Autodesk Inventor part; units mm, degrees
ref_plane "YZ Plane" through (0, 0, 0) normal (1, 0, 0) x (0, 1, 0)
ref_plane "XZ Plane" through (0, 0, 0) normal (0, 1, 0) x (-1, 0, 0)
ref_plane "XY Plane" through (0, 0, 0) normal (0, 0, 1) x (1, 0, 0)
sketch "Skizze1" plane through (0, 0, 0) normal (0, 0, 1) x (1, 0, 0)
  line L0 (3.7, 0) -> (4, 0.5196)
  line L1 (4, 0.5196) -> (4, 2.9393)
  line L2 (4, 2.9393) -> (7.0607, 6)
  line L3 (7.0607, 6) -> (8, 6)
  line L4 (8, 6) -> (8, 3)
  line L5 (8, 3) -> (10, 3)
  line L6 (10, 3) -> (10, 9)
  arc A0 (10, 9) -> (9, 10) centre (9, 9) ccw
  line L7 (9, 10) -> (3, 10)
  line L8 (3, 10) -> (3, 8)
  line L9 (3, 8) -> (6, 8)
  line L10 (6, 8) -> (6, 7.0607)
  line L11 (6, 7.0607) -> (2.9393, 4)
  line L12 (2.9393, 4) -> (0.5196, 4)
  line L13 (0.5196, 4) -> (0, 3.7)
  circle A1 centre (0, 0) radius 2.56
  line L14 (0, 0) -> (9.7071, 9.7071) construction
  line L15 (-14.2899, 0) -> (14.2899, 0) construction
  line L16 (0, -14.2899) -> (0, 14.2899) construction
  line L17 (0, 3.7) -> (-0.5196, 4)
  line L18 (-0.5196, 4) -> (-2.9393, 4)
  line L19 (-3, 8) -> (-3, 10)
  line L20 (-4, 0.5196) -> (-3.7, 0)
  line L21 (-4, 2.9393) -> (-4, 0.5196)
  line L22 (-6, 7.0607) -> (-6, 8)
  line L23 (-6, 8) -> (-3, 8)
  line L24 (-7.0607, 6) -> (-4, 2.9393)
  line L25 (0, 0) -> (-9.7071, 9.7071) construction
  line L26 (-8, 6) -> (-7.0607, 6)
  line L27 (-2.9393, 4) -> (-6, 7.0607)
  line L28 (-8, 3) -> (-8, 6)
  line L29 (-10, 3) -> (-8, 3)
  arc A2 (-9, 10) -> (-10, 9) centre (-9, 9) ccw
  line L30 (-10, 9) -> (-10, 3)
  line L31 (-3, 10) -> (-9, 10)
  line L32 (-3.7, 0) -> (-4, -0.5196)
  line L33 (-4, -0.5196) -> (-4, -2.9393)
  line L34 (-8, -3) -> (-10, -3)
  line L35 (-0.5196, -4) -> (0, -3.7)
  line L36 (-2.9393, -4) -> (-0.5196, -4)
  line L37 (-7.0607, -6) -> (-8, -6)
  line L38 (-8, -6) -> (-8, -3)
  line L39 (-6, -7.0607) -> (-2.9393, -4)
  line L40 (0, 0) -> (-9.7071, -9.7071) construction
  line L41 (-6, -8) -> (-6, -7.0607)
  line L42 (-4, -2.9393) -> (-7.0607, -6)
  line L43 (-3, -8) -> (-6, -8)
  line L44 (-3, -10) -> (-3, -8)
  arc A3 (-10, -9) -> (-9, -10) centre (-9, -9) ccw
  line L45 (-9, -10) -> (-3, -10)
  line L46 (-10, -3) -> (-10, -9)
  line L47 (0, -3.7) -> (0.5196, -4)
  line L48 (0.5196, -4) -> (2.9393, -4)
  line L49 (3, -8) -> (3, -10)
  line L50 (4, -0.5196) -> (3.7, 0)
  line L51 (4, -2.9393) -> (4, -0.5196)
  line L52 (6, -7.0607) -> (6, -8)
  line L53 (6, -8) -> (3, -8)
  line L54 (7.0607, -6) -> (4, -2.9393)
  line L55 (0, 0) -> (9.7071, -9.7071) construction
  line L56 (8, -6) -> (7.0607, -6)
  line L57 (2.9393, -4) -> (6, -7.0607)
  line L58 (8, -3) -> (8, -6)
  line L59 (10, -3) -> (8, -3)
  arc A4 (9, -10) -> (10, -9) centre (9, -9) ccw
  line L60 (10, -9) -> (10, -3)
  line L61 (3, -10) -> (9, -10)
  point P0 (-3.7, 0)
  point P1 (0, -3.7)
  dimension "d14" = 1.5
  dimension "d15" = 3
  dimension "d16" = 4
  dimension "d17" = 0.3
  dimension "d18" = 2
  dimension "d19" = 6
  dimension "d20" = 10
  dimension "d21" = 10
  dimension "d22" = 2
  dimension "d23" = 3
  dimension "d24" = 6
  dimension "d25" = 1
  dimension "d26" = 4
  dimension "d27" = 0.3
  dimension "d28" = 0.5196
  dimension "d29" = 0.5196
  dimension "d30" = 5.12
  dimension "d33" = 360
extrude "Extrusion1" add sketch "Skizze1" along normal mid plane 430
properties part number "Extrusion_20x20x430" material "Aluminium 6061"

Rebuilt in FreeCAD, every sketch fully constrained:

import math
import FreeCAD as App
import Part
import Sketcher

V = App.Vector
Q = App.Units.Quantity

doc = App.newDocument("Part")
body = doc.addObject("PartDesign::Body", "Body")

# Sketch on XY plane
sketch1 = body.newObject("Sketcher::SketchObject", "Sketch")
sketch1.AttachmentSupport = (doc.getObject("XY_Plane"), [""])
sketch1.MapMode = "FlatFace"
sketch1.addGeometry([
    Part.LineSegment(V(4, -0.5, 0), V(3.7, 0, 0)),  # 0
    Part.LineSegment(V(3.7, 0, 0), V(4, 0.5, 0)),  # 1
    Part.LineSegment(V(4, 0.5, 0), V(4, 2.9, 0)),  # 2
    Part.LineSegment(V(4, 2.9, 0), V(7.1, 6, 0)),  # 3
    Part.LineSegment(V(7.1, 6, 0), V(8, 6, 0)),  # 4
    Part.LineSegment(V(8, 6, 0), V(8, 3, 0)),  # 5
    Part.LineSegment(V(8, 3, 0), V(10, 3, 0)),  # 6
    Part.LineSegment(V(10, 3, 0), V(10, 9, 0)),  # 7
    Part.ArcOfCircle(Part.Circle(V(9, 9, 0), V(0, 0, 1), 1), math.radians(0), math.radians(90)),  # 8
    Part.LineSegment(V(9, 10, 0), V(3, 10, 0)),  # 9
    Part.LineSegment(V(3, 10, 0), V(3, 8, 0)),  # 10
    Part.LineSegment(V(3, 8, 0), V(6, 8, 0)),  # 11
    Part.LineSegment(V(6, 8, 0), V(6, 7.1, 0)),  # 12
    Part.LineSegment(V(6, 7.1, 0), V(2.9, 4, 0)),  # 13
    Part.LineSegment(V(2.9, 4, 0), V(0.5, 4, 0)),  # 14
    Part.LineSegment(V(0.5, 4, 0), V(0, 3.7, 0)),  # 15
    Part.LineSegment(V(0, 3.7, 0), V(-0.5, 4, 0)),  # 16
    Part.LineSegment(V(-0.5, 4, 0), V(-2.9, 4, 0)),  # 17
    Part.LineSegment(V(-2.9, 4, 0), V(-6, 7.1, 0)),  # 18
    Part.LineSegment(V(-6, 7.1, 0), V(-6, 8, 0)),  # 19
    Part.LineSegment(V(-6, 8, 0), V(-3, 8, 0)),  # 20
    Part.LineSegment(V(-3, 8, 0), V(-3, 10, 0)),  # 21
    Part.LineSegment(V(-3, 10, 0), V(-9, 10, 0)),  # 22
    Part.ArcOfCircle(Part.Circle(V(-9, 9, 0), V(0, 0, 1), 1), math.radians(90), math.radians(180)),  # 23
    Part.LineSegment(V(-10, 9, 0), V(-10, 3, 0)),  # 24
    Part.LineSegment(V(-10, 3, 0), V(-8, 3, 0)),  # 25
    Part.LineSegment(V(-8, 3, 0), V(-8, 6, 0)),  # 26
    Part.LineSegment(V(-8, 6, 0), V(-7.1, 6, 0)),  # 27
    Part.LineSegment(V(-7.1, 6, 0), V(-4, 2.9, 0)),  # 28
    Part.LineSegment(V(-4, 2.9, 0), V(-4, 0.5, 0)),  # 29
    Part.LineSegment(V(-4, 0.5, 0), V(-3.7, 0, 0)),  # 30
    Part.LineSegment(V(-3.7, 0, 0), V(-4, -0.5, 0)),  # 31
    Part.LineSegment(V(-4, -0.5, 0), V(-4, -2.9, 0)),  # 32
    Part.LineSegment(V(-4, -2.9, 0), V(-7.1, -6, 0)),  # 33
    Part.LineSegment(V(-7.1, -6, 0), V(-8, -6, 0)),  # 34
    Part.LineSegment(V(-8, -6, 0), V(-8, -3, 0)),  # 35
    Part.LineSegment(V(-8, -3, 0), V(-10, -3, 0)),  # 36
    Part.LineSegment(V(-10, -3, 0), V(-10, -9, 0)),  # 37
    Part.ArcOfCircle(Part.Circle(V(-9, -9, 0), V(0, 0, 1), 1), math.radians(180), math.radians(270)),  # 38
    Part.LineSegment(V(-9, -10, 0), V(-3, -10, 0)),  # 39
    Part.LineSegment(V(-3, -10, 0), V(-3, -8, 0)),  # 40
    Part.LineSegment(V(-3, -8, 0), V(-6, -8, 0)),  # 41
    Part.LineSegment(V(-6, -8, 0), V(-6, -7.1, 0)),  # 42
    Part.LineSegment(V(-6, -7.1, 0), V(-2.9, -4, 0)),  # 43
    Part.LineSegment(V(-2.9, -4, 0), V(-0.5, -4, 0)),  # 44
    Part.LineSegment(V(-0.5, -4, 0), V(0, -3.7, 0)),  # 45
    Part.LineSegment(V(0, -3.7, 0), V(0.5, -4, 0)),  # 46
    Part.LineSegment(V(0.5, -4, 0), V(2.9, -4, 0)),  # 47
    Part.LineSegment(V(2.9, -4, 0), V(6, -7.1, 0)),  # 48
    Part.LineSegment(V(6, -7.1, 0), V(6, -8, 0)),  # 49
    Part.LineSegment(V(6, -8, 0), V(3, -8, 0)),  # 50
    Part.LineSegment(V(3, -8, 0), V(3, -10, 0)),  # 51
    Part.LineSegment(V(3, -10, 0), V(9, -10, 0)),  # 52
    Part.ArcOfCircle(Part.Circle(V(9, -9, 0), V(0, 0, 1), 1), math.radians(-90), math.radians(0)),  # 53
    Part.LineSegment(V(10, -9, 0), V(10, -3, 0)),  # 54
    Part.LineSegment(V(10, -3, 0), V(8, -3, 0)),  # 55
    Part.LineSegment(V(8, -3, 0), V(8, -6, 0)),  # 56
    Part.LineSegment(V(8, -6, 0), V(7.1, -6, 0)),  # 57
    Part.LineSegment(V(7.1, -6, 0), V(4, -2.9, 0)),  # 58
    Part.LineSegment(V(4, -2.9, 0), V(4, -0.5, 0)),  # 59
    Part.Circle(V(0, 0, 0), V(0, 0, 1), 2.6),  # 60
], False)
sketch1.addConstraint([
    Sketcher.Constraint("Coincident", 0, 2, 1, 1),
    Sketcher.Constraint("Coincident", 1, 2, 2, 1),
    Sketcher.Constraint("Coincident", 2, 2, 3, 1),
    Sketcher.Constraint("Coincident", 3, 2, 4, 1),
    Sketcher.Constraint("Coincident", 4, 2, 5, 1),
    Sketcher.Constraint("Coincident", 5, 2, 6, 1),
    Sketcher.Constraint("Coincident", 6, 2, 7, 1),
    Sketcher.Constraint("Tangent", 7, 2, 8, 1),
    Sketcher.Constraint("Tangent", 8, 2, 9, 1),
    Sketcher.Constraint("Coincident", 9, 2, 10, 1),
    Sketcher.Constraint("Coincident", 10, 2, 11, 1),
    Sketcher.Constraint("Coincident", 11, 2, 12, 1),
    Sketcher.Constraint("Coincident", 12, 2, 13, 1),
    Sketcher.Constraint("Coincident", 13, 2, 14, 1),
    Sketcher.Constraint("Coincident", 14, 2, 15, 1),
    Sketcher.Constraint("Coincident", 15, 2, 16, 1),
    Sketcher.Constraint("Coincident", 16, 2, 17, 1),
    Sketcher.Constraint("Coincident", 17, 2, 18, 1),
    Sketcher.Constraint("Coincident", 18, 2, 19, 1),
    Sketcher.Constraint("Coincident", 19, 2, 20, 1),
    Sketcher.Constraint("Coincident", 20, 2, 21, 1),
    Sketcher.Constraint("Coincident", 21, 2, 22, 1),
    Sketcher.Constraint("Tangent", 22, 2, 23, 1),
    Sketcher.Constraint("Tangent", 23, 2, 24, 1),
    Sketcher.Constraint("Coincident", 24, 2, 25, 1),
    Sketcher.Constraint("Coincident", 25, 2, 26, 1),
    Sketcher.Constraint("Coincident", 26, 2, 27, 1),
    Sketcher.Constraint("Coincident", 27, 2, 28, 1),
    Sketcher.Constraint("Coincident", 28, 2, 29, 1),
    Sketcher.Constraint("Coincident", 29, 2, 30, 1),
    Sketcher.Constraint("Coincident", 30, 2, 31, 1),
    Sketcher.Constraint("Coincident", 31, 2, 32, 1),
    Sketcher.Constraint("Coincident", 32, 2, 33, 1),
    Sketcher.Constraint("Coincident", 33, 2, 34, 1),
    Sketcher.Constraint("Coincident", 34, 2, 35, 1),
    Sketcher.Constraint("Coincident", 35, 2, 36, 1),
    Sketcher.Constraint("Coincident", 36, 2, 37, 1),
    Sketcher.Constraint("Tangent", 37, 2, 38, 1),
    Sketcher.Constraint("Tangent", 38, 2, 39, 1),
    Sketcher.Constraint("Coincident", 39, 2, 40, 1),
    Sketcher.Constraint("Coincident", 40, 2, 41, 1),
    Sketcher.Constraint("Coincident", 41, 2, 42, 1),
    Sketcher.Constraint("Coincident", 42, 2, 43, 1),
    Sketcher.Constraint("Coincident", 43, 2, 44, 1),
    Sketcher.Constraint("Coincident", 44, 2, 45, 1),
    Sketcher.Constraint("Coincident", 45, 2, 46, 1),
    Sketcher.Constraint("Coincident", 46, 2, 47, 1),
    Sketcher.Constraint("Coincident", 47, 2, 48, 1),
    Sketcher.Constraint("Coincident", 48, 2, 49, 1),
    Sketcher.Constraint("Coincident", 49, 2, 50, 1),
    Sketcher.Constraint("Coincident", 50, 2, 51, 1),
    Sketcher.Constraint("Coincident", 51, 2, 52, 1),
    Sketcher.Constraint("Tangent", 52, 2, 53, 1),
    Sketcher.Constraint("Tangent", 53, 2, 54, 1),
    Sketcher.Constraint("Coincident", 54, 2, 55, 1),
    Sketcher.Constraint("Coincident", 55, 2, 56, 1),
    Sketcher.Constraint("Coincident", 56, 2, 57, 1),
    Sketcher.Constraint("Coincident", 57, 2, 58, 1),
    Sketcher.Constraint("Coincident", 58, 2, 59, 1),
    Sketcher.Constraint("Coincident", 59, 2, 0, 1),
    Sketcher.Constraint("Vertical", 2),
    Sketcher.Constraint("Horizontal", 4),
    Sketcher.Constraint("Vertical", 5),
    Sketcher.Constraint("Horizontal", 6),
    Sketcher.Constraint("Vertical", 7),
    Sketcher.Constraint("Horizontal", 9),
    Sketcher.Constraint("Vertical", 10),
    Sketcher.Constraint("Horizontal", 11),
    Sketcher.Constraint("Vertical", 12),
    Sketcher.Constraint("Horizontal", 14),
    Sketcher.Constraint("Horizontal", 17),
    Sketcher.Constraint("Vertical", 19),
    Sketcher.Constraint("Horizontal", 20),
    Sketcher.Constraint("Vertical", 21),
    Sketcher.Constraint("Horizontal", 22),
    Sketcher.Constraint("Vertical", 24),
    Sketcher.Constraint("Horizontal", 25),
    Sketcher.Constraint("Vertical", 26),
    Sketcher.Constraint("Horizontal", 27),
    Sketcher.Constraint("Vertical", 29),
    Sketcher.Constraint("Vertical", 32),
    Sketcher.Constraint("Horizontal", 34),
    Sketcher.Constraint("Vertical", 35),
    Sketcher.Constraint("Horizontal", 36),
    Sketcher.Constraint("Vertical", 37),
    Sketcher.Constraint("Horizontal", 39),
    Sketcher.Constraint("Vertical", 40),
    Sketcher.Constraint("Horizontal", 41),
    Sketcher.Constraint("Vertical", 42),
    Sketcher.Constraint("Horizontal", 44),
    Sketcher.Constraint("Horizontal", 47),
    Sketcher.Constraint("Vertical", 49),
    Sketcher.Constraint("Horizontal", 50),
    Sketcher.Constraint("Vertical", 51),
    Sketcher.Constraint("Horizontal", 52),
    Sketcher.Constraint("Vertical", 54),
    Sketcher.Constraint("Horizontal", 55),
    Sketcher.Constraint("Vertical", 56),
    Sketcher.Constraint("Horizontal", 57),
    Sketcher.Constraint("Vertical", 59),
    Sketcher.Constraint("Coincident", 60, 3, -1, 1),
    Sketcher.Constraint("Equal", 8, 23),
    Sketcher.Constraint("Equal", 23, 38),
    Sketcher.Constraint("Equal", 38, 53),
    Sketcher.Constraint("Symmetric", 8, 3, 38, 3, -1, 1),
    Sketcher.Constraint("Symmetric", 23, 3, 53, 3, -1, 1),
    Sketcher.Constraint("Symmetric", 0, 2, 30, 2, -1, 1),
    Sketcher.Constraint("Symmetric", 1, 2, 31, 2, -1, 1),
    Sketcher.Constraint("Symmetric", 3, 2, 33, 2, -1, 1),
    Sketcher.Constraint("Symmetric", 5, 2, 35, 2, -1, 1),
    Sketcher.Constraint("Symmetric", 10, 2, 40, 2, -1, 1),
    Sketcher.Constraint("Symmetric", 12, 2, 42, 2, -1, 1),
    Sketcher.Constraint("Symmetric", 13, 2, 43, 2, -1, 1),
    Sketcher.Constraint("Symmetric", 15, 2, 45, 2, -1, 1),
    Sketcher.Constraint("Symmetric", 16, 2, 46, 2, -1, 1),
    Sketcher.Constraint("Symmetric", 18, 2, 48, 2, -1, 1),
    Sketcher.Constraint("Symmetric", 20, 2, 50, 2, -1, 1),
    Sketcher.Constraint("Symmetric", 25, 2, 55, 2, -1, 1),
    Sketcher.Constraint("Symmetric", 27, 2, 57, 2, -1, 1),
    Sketcher.Constraint("Symmetric", 28, 2, 58, 2, -1, 1),
    Sketcher.Constraint("Symmetric", 8, 3, 23, 3, -2),
    Sketcher.Constraint("Symmetric", 14, 2, 16, 2, -2),
    Sketcher.Constraint("Symmetric", 12, 2, 18, 2, -2),
    Sketcher.Constraint("Symmetric", 10, 2, 20, 2, -2),
    Sketcher.Constraint("Symmetric", 5, 2, 25, 2, -2),
    Sketcher.Constraint("Symmetric", 3, 2, 27, 2, -2),
    Sketcher.Constraint("Symmetric", 2, 2, 28, 2, -2),
    Sketcher.Constraint("PointOnObject", 0, 2, -1),
    Sketcher.Constraint("PointOnObject", 15, 2, -2),
    Sketcher.Constraint("Parallel", 3, 13),
    Sketcher.Constraint("Perpendicular", 0, 15),
    Sketcher.Constraint("Perpendicular", 1, 16),
    Sketcher.Constraint("Perpendicular", 13, 18),
    Sketcher.Constraint("Parallel", 18, 28),
    Sketcher.Constraint("Perpendicular", 15, 30),
    Sketcher.Constraint("Perpendicular", 28, 33),
    Sketcher.Constraint("Perpendicular", 30, 45),
    Sketcher.Constraint("Perpendicular", 43, 48),
    Sketcher.Constraint("Equal", 47, 2),
    Sketcher.Constraint("Equal", 50, 5),
    Sketcher.Constraint("Equal", 52, 7),
    Sketcher.Constraint("Equal", 55, 10),
    Sketcher.Constraint("Equal", 57, 12),
    Sketcher.Constraint("Equal", 3, 13),
    Sketcher.Constraint("Equal", 1, 15),
    Sketcher.Constraint("Radius", 8, Q("1 mm")),
    Sketcher.Constraint("Diameter", 60, Q("5.12 mm")),
    Sketcher.Constraint("DistanceX", 6, 1, 6, 2, Q("2 mm")),
    Sketcher.Constraint("DistanceX", 9, 2, 9, 1, Q("6 mm")),
    Sketcher.Constraint("DistanceX", 11, 1, 11, 2, Q("3 mm")),
    Sketcher.Constraint("DistanceX", -1, 1, 1, 2, Q("4 mm")),
    Sketcher.Constraint("DistanceY", -1, 1, 3, 2, Q("6 mm")),
    Sketcher.Constraint("Angle", 0, Q("120.0007 deg")),
    Sketcher.Constraint("Distance", 0, Q("0.6 mm")),
    Sketcher.Constraint("DistanceX", 4, 1, 4, 2, Q("0.9393 mm")),
])
pad1 = body.newObject("PartDesign::Pad", "Pad")
pad1.Profile = sketch1
pad1.Length = 430
pad1.Midplane = True

doc.recompute()
